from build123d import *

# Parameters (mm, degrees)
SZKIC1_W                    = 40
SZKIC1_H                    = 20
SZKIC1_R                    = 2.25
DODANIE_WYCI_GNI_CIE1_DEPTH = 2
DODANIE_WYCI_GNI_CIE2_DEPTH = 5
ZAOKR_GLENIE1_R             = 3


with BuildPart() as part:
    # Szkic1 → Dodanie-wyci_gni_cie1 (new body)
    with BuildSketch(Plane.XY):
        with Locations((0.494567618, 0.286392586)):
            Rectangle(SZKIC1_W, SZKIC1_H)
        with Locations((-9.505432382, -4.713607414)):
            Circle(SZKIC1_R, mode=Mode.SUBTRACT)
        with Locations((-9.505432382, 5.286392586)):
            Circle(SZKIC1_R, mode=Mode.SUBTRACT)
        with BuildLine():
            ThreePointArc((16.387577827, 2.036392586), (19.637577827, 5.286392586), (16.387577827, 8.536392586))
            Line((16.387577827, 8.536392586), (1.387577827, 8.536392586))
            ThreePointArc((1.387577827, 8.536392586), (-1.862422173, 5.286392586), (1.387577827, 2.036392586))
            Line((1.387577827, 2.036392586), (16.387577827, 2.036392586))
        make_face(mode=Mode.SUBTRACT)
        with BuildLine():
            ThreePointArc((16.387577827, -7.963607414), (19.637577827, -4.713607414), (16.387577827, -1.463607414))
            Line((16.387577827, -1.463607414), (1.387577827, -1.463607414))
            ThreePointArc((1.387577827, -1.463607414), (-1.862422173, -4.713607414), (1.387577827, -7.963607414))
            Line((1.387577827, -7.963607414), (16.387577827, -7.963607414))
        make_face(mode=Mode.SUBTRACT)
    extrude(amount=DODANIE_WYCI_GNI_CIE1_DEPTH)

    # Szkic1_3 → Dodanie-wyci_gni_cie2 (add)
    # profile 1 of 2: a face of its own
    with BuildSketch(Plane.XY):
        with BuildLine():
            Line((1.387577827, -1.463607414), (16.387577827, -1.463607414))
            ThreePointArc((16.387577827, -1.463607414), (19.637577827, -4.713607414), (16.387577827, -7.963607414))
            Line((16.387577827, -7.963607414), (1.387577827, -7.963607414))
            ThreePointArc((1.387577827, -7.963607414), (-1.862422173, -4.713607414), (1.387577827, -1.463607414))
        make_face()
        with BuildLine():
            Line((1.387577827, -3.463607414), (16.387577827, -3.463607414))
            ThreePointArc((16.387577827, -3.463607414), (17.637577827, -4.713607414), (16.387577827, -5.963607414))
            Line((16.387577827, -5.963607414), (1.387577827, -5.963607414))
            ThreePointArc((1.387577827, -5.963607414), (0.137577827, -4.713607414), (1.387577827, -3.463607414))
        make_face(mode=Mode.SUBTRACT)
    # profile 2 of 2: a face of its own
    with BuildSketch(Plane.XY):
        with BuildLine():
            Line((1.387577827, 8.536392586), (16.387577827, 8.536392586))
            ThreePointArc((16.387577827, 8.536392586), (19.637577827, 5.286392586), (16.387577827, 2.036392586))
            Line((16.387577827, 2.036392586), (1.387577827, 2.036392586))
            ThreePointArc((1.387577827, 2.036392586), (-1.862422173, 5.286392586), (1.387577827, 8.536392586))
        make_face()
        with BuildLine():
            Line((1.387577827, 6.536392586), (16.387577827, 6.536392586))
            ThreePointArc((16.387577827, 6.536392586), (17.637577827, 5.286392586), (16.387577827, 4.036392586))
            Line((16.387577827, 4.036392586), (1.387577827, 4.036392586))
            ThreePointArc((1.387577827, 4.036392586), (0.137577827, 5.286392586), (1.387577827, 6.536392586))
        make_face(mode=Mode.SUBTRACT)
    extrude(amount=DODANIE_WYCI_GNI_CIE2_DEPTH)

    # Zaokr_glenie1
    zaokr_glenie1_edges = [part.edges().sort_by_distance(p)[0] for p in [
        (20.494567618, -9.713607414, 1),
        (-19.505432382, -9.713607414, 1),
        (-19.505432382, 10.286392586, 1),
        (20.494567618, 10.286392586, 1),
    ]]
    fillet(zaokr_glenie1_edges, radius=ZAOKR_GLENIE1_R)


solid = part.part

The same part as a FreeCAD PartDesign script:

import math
import FreeCAD as App
import Part
import Sketcher


def edges_at(feature, points):
    """Names of the edges that pass closest to the given points."""
    edges = feature.Shape.Edges
    near = lambda p: min(range(len(edges)), key=lambda i: edges[i].distToShape(Part.Vertex(*p))[0])
    return sorted({f"Edge{near(p) + 1}" for p in points})

doc = App.newDocument("Part")
body = doc.addObject("PartDesign::Body", "Body")

# Sketch on XY plane
sketch1 = doc.addObject("Sketcher::SketchObject", "Sketch")
body.addObject(sketch1)
sketch1.AttachmentSupport = (doc.XY_Plane, [""])
sketch1.MapMode = "FlatFace"
sketch1.addGeometry([
    Part.LineSegment(App.Vector(-19.505432, 10.286393, 0), App.Vector(-19.505432, -9.713607, 0)),  # 0
    Part.LineSegment(App.Vector(-19.505432, -9.713607, 0), App.Vector(20.494568, -9.713607, 0)),  # 1
    Part.LineSegment(App.Vector(20.494568, -9.713607, 0), App.Vector(20.494568, 10.286393, 0)),  # 2
    Part.LineSegment(App.Vector(20.494568, 10.286393, 0), App.Vector(-19.505432, 10.286393, 0)),  # 3
    Part.Circle(App.Vector(-9.505432, -4.713607, 0), App.Vector(0, 0, 1), 2.25),  # 4
    Part.ArcOfCircle(Part.Circle(App.Vector(16.387578, -4.713607, 0), App.Vector(0, 0, 1), 3.25), math.radians(-90), math.radians(90)),  # 5
    Part.LineSegment(App.Vector(16.387578, -7.963607, 0), App.Vector(1.387578, -7.963607, 0)),  # 6
    Part.ArcOfCircle(Part.Circle(App.Vector(1.387578, -4.713607, 0), App.Vector(0, 0, 1), 3.25), math.radians(90), math.radians(270)),  # 7
    Part.LineSegment(App.Vector(1.387578, -1.463607, 0), App.Vector(16.387578, -1.463607, 0)),  # 8
    Part.Circle(App.Vector(-9.505432, 5.286393, 0), App.Vector(0, 0, 1), 2.25),  # 9
    Part.ArcOfCircle(Part.Circle(App.Vector(16.387578, 5.286393, 0), App.Vector(0, 0, 1), 3.25), math.radians(-90), math.radians(90)),  # 10
    Part.LineSegment(App.Vector(16.387578, 2.036393, 0), App.Vector(1.387578, 2.036393, 0)),  # 11
    Part.ArcOfCircle(Part.Circle(App.Vector(1.387578, 5.286393, 0), App.Vector(0, 0, 1), 3.25), math.radians(90), math.radians(270)),  # 12
    Part.LineSegment(App.Vector(1.387578, 8.536393, 0), App.Vector(16.387578, 8.536393, 0)),  # 13
], False)
sketch1.addConstraint([
    Sketcher.Constraint("Coincident", 0, 2, 1, 1),
    Sketcher.Constraint("Coincident", 1, 2, 2, 1),
    Sketcher.Constraint("Coincident", 2, 2, 3, 1),
    Sketcher.Constraint("Coincident", 3, 2, 0, 1),
    Sketcher.Constraint("Tangent", 5, 1, 6, 1),
    Sketcher.Constraint("Tangent", 6, 2, 7, 2),
    Sketcher.Constraint("Tangent", 7, 1, 8, 1),
    Sketcher.Constraint("Tangent", 8, 2, 5, 2),
    Sketcher.Constraint("Tangent", 10, 1, 11, 1),
    Sketcher.Constraint("Tangent", 11, 2, 12, 2),
    Sketcher.Constraint("Tangent", 12, 1, 13, 1),
    Sketcher.Constraint("Tangent", 13, 2, 10, 2),
    Sketcher.Constraint("Vertical", 0),
    Sketcher.Constraint("Horizontal", 1),
    Sketcher.Constraint("Vertical", 2),
    Sketcher.Constraint("Horizontal", 3),
    Sketcher.Constraint("Horizontal", 6),
    Sketcher.Constraint("Horizontal", 8),
    Sketcher.Constraint("Horizontal", 11),
    Sketcher.Constraint("Horizontal", 13),
    Sketcher.Constraint("Equal", 4, 9),
    Sketcher.Constraint("Equal", 7, 10),
    Sketcher.Constraint("Horizontal", 4, 3, 5, 3),
    Sketcher.Constraint("Horizontal", 9, 3, 10, 3),
    Sketcher.Constraint("Vertical", 4, 3, 9, 3),
    Sketcher.Constraint("Vertical", 5, 3, 10, 3),
    Sketcher.Constraint("Vertical", 7, 3, 12, 3),
    Sketcher.Constraint("Diameter", 4, 4.5),
    Sketcher.Constraint("DistanceX", 1, 1, 1, 2, 40.0),
    Sketcher.Constraint("DistanceX", 6, 2, 6, 1, 15.0),
    Sketcher.Constraint("DistanceY", 0, 2, 0, 1, 20.0),
    Sketcher.Constraint("Radius", 5, 3.25),
    Sketcher.Constraint("DistanceY", 4, 3, 9, 3, 10.0),
    Sketcher.Constraint("DistanceX", 0, 2, 4, 3, 10.0),
    Sketcher.Constraint("DistanceY", 0, 2, 4, 3, 5.0),
    Sketcher.Constraint("DistanceX", 4, 3, 5, 3, 25.89301),
    Sketcher.Constraint("DistanceX", 4, 3, -1, 1, 9.505432),
    Sketcher.Constraint("DistanceY", 4, 3, -1, 1, 4.713607),
])
pad1 = doc.addObject("PartDesign::Pad", "Pad")
body.addObject(pad1)
pad1.Profile = sketch1
pad1.Length = 2

# Sketch on XY plane
sketch2 = doc.addObject("Sketcher::SketchObject", "Sketch001")
body.addObject(sketch2)
sketch2.AttachmentSupport = (doc.XY_Plane, [""])
sketch2.MapMode = "FlatFace"
sketch2.addGeometry([
    Part.LineSegment(App.Vector(16.387578, -1.463607, 0), App.Vector(1.387578, -1.463607, 0)),  # 0
    Part.ArcOfCircle(Part.Circle(App.Vector(1.387578, -4.713607, 0), App.Vector(0, 0, 1), 3.25), math.radians(90), math.radians(270)),  # 1
    Part.LineSegment(App.Vector(1.387578, -7.963607, 0), App.Vector(16.387578, -7.963607, 0)),  # 2
    Part.ArcOfCircle(Part.Circle(App.Vector(16.387578, -4.713607, 0), App.Vector(0, 0, 1), 3.25), math.radians(-90), math.radians(90)),  # 3
    Part.LineSegment(App.Vector(1.387578, -3.463607, 0), App.Vector(16.387578, -3.463607, 0)),  # 4
    Part.ArcOfCircle(Part.Circle(App.Vector(16.387578, -4.713607, 0), App.Vector(0, 0, 1), 1.25), math.radians(-90), math.radians(90)),  # 5
    Part.LineSegment(App.Vector(16.387578, -5.963607, 0), App.Vector(1.387578, -5.963607, 0)),  # 6
    Part.ArcOfCircle(Part.Circle(App.Vector(1.387578, -4.713607, 0), App.Vector(0, 0, 1), 1.25), math.radians(90), math.radians(270)),  # 7
    Part.LineSegment(App.Vector(16.387578, 8.536393, 0), App.Vector(1.387578, 8.536393, 0)),  # 8
    Part.ArcOfCircle(Part.Circle(App.Vector(1.387578, 5.286393, 0), App.Vector(0, 0, 1), 3.25), math.radians(90), math.radians(270)),  # 9
    Part.LineSegment(App.Vector(1.387578, 2.036393, 0), App.Vector(16.387578, 2.036393, 0)),  # 10
    Part.ArcOfCircle(Part.Circle(App.Vector(16.387578, 5.286393, 0), App.Vector(0, 0, 1), 3.25), math.radians(-90), math.radians(90)),  # 11
    Part.LineSegment(App.Vector(1.387578, 6.536393, 0), App.Vector(16.387578, 6.536393, 0)),  # 12
    Part.ArcOfCircle(Part.Circle(App.Vector(16.387578, 5.286393, 0), App.Vector(0, 0, 1), 1.25), math.radians(-90), math.radians(90)),  # 13
    Part.LineSegment(App.Vector(16.387578, 4.036393, 0), App.Vector(1.387578, 4.036393, 0)),  # 14
    Part.ArcOfCircle(Part.Circle(App.Vector(1.387578, 5.286393, 0), App.Vector(0, 0, 1), 1.25), math.radians(90), math.radians(270)),  # 15
], False)
sketch2.addConstraint([
    Sketcher.Constraint("Tangent", 0, 2, 1, 1),
    Sketcher.Constraint("Tangent", 1, 2, 2, 1),
    Sketcher.Constraint("Tangent", 2, 2, 3, 1),
    Sketcher.Constraint("Tangent", 3, 2, 0, 1),
    Sketcher.Constraint("Tangent", 4, 2, 5, 2),
    Sketcher.Constraint("Tangent", 5, 1, 6, 1),
    Sketcher.Constraint("Tangent", 6, 2, 7, 2),
    Sketcher.Constraint("Tangent", 7, 1, 4, 1),
    Sketcher.Constraint("Tangent", 8, 2, 9, 1),
    Sketcher.Constraint("Tangent", 9, 2, 10, 1),
    Sketcher.Constraint("Tangent", 10, 2, 11, 1),
    Sketcher.Constraint("Tangent", 11, 2, 8, 1),
    Sketcher.Constraint("Tangent", 12, 2, 13, 2),
    Sketcher.Constraint("Tangent", 13, 1, 14, 1),
    Sketcher.Constraint("Tangent", 14, 2, 15, 2),
    Sketcher.Constraint("Tangent", 15, 1, 12, 1),
    Sketcher.Constraint("Horizontal", 0),
    Sketcher.Constraint("Horizontal", 2),
    Sketcher.Constraint("Horizontal", 4),
    Sketcher.Constraint("Horizontal", 6),
    Sketcher.Constraint("Horizontal", 8),
    Sketcher.Constraint("Horizontal", 10),
    Sketcher.Constraint("Horizontal", 12),
    Sketcher.Constraint("Horizontal", 14),
    Sketcher.Constraint("Coincident", 5, 3, 3, 3),
    Sketcher.Constraint("Coincident", 13, 3, 11, 3),
    Sketcher.Constraint("Equal", 3, 9),
    Sketcher.Constraint("Equal", 7, 13),
    Sketcher.Constraint("Vertical", 7, 3, 9, 3),
    Sketcher.Constraint("Vertical", 5, 3, 11, 3),
    Sketcher.Constraint("Vertical", 7, 3, 15, 3),
    Sketcher.Constraint("Vertical", 15, 3, 0, 2),
    Sketcher.Constraint("DistanceX", 0, 2, 0, 1, 15.0),
    Sketcher.Constraint("Radius", 1, 3.25),
    Sketcher.Constraint("Radius", 5, 1.25),
    Sketcher.Constraint("DistanceY", 1, 3, 9, 3, 10.0),
    Sketcher.Constraint("DistanceX", -1, 1, 1, 3, 1.387578),
    Sketcher.Constraint("DistanceY", 1, 3, -1, 1, 4.713607),
])
pad2 = doc.addObject("PartDesign::Pad", "Pad001")
body.addObject(pad2)
pad2.Profile = sketch2
pad2.Length = 5
doc.recompute()

fillet = doc.addObject("PartDesign::Fillet", "Fillet")
body.addObject(fillet)
fillet.Base = (pad2, edges_at(pad2, [
    (20.495, -9.714, 1),
    (-19.505, -9.714, 1),
    (-19.505, 10.286, 1),
    (20.495, 10.286, 1),
]))
fillet.Radius = 3

doc.recompute()
